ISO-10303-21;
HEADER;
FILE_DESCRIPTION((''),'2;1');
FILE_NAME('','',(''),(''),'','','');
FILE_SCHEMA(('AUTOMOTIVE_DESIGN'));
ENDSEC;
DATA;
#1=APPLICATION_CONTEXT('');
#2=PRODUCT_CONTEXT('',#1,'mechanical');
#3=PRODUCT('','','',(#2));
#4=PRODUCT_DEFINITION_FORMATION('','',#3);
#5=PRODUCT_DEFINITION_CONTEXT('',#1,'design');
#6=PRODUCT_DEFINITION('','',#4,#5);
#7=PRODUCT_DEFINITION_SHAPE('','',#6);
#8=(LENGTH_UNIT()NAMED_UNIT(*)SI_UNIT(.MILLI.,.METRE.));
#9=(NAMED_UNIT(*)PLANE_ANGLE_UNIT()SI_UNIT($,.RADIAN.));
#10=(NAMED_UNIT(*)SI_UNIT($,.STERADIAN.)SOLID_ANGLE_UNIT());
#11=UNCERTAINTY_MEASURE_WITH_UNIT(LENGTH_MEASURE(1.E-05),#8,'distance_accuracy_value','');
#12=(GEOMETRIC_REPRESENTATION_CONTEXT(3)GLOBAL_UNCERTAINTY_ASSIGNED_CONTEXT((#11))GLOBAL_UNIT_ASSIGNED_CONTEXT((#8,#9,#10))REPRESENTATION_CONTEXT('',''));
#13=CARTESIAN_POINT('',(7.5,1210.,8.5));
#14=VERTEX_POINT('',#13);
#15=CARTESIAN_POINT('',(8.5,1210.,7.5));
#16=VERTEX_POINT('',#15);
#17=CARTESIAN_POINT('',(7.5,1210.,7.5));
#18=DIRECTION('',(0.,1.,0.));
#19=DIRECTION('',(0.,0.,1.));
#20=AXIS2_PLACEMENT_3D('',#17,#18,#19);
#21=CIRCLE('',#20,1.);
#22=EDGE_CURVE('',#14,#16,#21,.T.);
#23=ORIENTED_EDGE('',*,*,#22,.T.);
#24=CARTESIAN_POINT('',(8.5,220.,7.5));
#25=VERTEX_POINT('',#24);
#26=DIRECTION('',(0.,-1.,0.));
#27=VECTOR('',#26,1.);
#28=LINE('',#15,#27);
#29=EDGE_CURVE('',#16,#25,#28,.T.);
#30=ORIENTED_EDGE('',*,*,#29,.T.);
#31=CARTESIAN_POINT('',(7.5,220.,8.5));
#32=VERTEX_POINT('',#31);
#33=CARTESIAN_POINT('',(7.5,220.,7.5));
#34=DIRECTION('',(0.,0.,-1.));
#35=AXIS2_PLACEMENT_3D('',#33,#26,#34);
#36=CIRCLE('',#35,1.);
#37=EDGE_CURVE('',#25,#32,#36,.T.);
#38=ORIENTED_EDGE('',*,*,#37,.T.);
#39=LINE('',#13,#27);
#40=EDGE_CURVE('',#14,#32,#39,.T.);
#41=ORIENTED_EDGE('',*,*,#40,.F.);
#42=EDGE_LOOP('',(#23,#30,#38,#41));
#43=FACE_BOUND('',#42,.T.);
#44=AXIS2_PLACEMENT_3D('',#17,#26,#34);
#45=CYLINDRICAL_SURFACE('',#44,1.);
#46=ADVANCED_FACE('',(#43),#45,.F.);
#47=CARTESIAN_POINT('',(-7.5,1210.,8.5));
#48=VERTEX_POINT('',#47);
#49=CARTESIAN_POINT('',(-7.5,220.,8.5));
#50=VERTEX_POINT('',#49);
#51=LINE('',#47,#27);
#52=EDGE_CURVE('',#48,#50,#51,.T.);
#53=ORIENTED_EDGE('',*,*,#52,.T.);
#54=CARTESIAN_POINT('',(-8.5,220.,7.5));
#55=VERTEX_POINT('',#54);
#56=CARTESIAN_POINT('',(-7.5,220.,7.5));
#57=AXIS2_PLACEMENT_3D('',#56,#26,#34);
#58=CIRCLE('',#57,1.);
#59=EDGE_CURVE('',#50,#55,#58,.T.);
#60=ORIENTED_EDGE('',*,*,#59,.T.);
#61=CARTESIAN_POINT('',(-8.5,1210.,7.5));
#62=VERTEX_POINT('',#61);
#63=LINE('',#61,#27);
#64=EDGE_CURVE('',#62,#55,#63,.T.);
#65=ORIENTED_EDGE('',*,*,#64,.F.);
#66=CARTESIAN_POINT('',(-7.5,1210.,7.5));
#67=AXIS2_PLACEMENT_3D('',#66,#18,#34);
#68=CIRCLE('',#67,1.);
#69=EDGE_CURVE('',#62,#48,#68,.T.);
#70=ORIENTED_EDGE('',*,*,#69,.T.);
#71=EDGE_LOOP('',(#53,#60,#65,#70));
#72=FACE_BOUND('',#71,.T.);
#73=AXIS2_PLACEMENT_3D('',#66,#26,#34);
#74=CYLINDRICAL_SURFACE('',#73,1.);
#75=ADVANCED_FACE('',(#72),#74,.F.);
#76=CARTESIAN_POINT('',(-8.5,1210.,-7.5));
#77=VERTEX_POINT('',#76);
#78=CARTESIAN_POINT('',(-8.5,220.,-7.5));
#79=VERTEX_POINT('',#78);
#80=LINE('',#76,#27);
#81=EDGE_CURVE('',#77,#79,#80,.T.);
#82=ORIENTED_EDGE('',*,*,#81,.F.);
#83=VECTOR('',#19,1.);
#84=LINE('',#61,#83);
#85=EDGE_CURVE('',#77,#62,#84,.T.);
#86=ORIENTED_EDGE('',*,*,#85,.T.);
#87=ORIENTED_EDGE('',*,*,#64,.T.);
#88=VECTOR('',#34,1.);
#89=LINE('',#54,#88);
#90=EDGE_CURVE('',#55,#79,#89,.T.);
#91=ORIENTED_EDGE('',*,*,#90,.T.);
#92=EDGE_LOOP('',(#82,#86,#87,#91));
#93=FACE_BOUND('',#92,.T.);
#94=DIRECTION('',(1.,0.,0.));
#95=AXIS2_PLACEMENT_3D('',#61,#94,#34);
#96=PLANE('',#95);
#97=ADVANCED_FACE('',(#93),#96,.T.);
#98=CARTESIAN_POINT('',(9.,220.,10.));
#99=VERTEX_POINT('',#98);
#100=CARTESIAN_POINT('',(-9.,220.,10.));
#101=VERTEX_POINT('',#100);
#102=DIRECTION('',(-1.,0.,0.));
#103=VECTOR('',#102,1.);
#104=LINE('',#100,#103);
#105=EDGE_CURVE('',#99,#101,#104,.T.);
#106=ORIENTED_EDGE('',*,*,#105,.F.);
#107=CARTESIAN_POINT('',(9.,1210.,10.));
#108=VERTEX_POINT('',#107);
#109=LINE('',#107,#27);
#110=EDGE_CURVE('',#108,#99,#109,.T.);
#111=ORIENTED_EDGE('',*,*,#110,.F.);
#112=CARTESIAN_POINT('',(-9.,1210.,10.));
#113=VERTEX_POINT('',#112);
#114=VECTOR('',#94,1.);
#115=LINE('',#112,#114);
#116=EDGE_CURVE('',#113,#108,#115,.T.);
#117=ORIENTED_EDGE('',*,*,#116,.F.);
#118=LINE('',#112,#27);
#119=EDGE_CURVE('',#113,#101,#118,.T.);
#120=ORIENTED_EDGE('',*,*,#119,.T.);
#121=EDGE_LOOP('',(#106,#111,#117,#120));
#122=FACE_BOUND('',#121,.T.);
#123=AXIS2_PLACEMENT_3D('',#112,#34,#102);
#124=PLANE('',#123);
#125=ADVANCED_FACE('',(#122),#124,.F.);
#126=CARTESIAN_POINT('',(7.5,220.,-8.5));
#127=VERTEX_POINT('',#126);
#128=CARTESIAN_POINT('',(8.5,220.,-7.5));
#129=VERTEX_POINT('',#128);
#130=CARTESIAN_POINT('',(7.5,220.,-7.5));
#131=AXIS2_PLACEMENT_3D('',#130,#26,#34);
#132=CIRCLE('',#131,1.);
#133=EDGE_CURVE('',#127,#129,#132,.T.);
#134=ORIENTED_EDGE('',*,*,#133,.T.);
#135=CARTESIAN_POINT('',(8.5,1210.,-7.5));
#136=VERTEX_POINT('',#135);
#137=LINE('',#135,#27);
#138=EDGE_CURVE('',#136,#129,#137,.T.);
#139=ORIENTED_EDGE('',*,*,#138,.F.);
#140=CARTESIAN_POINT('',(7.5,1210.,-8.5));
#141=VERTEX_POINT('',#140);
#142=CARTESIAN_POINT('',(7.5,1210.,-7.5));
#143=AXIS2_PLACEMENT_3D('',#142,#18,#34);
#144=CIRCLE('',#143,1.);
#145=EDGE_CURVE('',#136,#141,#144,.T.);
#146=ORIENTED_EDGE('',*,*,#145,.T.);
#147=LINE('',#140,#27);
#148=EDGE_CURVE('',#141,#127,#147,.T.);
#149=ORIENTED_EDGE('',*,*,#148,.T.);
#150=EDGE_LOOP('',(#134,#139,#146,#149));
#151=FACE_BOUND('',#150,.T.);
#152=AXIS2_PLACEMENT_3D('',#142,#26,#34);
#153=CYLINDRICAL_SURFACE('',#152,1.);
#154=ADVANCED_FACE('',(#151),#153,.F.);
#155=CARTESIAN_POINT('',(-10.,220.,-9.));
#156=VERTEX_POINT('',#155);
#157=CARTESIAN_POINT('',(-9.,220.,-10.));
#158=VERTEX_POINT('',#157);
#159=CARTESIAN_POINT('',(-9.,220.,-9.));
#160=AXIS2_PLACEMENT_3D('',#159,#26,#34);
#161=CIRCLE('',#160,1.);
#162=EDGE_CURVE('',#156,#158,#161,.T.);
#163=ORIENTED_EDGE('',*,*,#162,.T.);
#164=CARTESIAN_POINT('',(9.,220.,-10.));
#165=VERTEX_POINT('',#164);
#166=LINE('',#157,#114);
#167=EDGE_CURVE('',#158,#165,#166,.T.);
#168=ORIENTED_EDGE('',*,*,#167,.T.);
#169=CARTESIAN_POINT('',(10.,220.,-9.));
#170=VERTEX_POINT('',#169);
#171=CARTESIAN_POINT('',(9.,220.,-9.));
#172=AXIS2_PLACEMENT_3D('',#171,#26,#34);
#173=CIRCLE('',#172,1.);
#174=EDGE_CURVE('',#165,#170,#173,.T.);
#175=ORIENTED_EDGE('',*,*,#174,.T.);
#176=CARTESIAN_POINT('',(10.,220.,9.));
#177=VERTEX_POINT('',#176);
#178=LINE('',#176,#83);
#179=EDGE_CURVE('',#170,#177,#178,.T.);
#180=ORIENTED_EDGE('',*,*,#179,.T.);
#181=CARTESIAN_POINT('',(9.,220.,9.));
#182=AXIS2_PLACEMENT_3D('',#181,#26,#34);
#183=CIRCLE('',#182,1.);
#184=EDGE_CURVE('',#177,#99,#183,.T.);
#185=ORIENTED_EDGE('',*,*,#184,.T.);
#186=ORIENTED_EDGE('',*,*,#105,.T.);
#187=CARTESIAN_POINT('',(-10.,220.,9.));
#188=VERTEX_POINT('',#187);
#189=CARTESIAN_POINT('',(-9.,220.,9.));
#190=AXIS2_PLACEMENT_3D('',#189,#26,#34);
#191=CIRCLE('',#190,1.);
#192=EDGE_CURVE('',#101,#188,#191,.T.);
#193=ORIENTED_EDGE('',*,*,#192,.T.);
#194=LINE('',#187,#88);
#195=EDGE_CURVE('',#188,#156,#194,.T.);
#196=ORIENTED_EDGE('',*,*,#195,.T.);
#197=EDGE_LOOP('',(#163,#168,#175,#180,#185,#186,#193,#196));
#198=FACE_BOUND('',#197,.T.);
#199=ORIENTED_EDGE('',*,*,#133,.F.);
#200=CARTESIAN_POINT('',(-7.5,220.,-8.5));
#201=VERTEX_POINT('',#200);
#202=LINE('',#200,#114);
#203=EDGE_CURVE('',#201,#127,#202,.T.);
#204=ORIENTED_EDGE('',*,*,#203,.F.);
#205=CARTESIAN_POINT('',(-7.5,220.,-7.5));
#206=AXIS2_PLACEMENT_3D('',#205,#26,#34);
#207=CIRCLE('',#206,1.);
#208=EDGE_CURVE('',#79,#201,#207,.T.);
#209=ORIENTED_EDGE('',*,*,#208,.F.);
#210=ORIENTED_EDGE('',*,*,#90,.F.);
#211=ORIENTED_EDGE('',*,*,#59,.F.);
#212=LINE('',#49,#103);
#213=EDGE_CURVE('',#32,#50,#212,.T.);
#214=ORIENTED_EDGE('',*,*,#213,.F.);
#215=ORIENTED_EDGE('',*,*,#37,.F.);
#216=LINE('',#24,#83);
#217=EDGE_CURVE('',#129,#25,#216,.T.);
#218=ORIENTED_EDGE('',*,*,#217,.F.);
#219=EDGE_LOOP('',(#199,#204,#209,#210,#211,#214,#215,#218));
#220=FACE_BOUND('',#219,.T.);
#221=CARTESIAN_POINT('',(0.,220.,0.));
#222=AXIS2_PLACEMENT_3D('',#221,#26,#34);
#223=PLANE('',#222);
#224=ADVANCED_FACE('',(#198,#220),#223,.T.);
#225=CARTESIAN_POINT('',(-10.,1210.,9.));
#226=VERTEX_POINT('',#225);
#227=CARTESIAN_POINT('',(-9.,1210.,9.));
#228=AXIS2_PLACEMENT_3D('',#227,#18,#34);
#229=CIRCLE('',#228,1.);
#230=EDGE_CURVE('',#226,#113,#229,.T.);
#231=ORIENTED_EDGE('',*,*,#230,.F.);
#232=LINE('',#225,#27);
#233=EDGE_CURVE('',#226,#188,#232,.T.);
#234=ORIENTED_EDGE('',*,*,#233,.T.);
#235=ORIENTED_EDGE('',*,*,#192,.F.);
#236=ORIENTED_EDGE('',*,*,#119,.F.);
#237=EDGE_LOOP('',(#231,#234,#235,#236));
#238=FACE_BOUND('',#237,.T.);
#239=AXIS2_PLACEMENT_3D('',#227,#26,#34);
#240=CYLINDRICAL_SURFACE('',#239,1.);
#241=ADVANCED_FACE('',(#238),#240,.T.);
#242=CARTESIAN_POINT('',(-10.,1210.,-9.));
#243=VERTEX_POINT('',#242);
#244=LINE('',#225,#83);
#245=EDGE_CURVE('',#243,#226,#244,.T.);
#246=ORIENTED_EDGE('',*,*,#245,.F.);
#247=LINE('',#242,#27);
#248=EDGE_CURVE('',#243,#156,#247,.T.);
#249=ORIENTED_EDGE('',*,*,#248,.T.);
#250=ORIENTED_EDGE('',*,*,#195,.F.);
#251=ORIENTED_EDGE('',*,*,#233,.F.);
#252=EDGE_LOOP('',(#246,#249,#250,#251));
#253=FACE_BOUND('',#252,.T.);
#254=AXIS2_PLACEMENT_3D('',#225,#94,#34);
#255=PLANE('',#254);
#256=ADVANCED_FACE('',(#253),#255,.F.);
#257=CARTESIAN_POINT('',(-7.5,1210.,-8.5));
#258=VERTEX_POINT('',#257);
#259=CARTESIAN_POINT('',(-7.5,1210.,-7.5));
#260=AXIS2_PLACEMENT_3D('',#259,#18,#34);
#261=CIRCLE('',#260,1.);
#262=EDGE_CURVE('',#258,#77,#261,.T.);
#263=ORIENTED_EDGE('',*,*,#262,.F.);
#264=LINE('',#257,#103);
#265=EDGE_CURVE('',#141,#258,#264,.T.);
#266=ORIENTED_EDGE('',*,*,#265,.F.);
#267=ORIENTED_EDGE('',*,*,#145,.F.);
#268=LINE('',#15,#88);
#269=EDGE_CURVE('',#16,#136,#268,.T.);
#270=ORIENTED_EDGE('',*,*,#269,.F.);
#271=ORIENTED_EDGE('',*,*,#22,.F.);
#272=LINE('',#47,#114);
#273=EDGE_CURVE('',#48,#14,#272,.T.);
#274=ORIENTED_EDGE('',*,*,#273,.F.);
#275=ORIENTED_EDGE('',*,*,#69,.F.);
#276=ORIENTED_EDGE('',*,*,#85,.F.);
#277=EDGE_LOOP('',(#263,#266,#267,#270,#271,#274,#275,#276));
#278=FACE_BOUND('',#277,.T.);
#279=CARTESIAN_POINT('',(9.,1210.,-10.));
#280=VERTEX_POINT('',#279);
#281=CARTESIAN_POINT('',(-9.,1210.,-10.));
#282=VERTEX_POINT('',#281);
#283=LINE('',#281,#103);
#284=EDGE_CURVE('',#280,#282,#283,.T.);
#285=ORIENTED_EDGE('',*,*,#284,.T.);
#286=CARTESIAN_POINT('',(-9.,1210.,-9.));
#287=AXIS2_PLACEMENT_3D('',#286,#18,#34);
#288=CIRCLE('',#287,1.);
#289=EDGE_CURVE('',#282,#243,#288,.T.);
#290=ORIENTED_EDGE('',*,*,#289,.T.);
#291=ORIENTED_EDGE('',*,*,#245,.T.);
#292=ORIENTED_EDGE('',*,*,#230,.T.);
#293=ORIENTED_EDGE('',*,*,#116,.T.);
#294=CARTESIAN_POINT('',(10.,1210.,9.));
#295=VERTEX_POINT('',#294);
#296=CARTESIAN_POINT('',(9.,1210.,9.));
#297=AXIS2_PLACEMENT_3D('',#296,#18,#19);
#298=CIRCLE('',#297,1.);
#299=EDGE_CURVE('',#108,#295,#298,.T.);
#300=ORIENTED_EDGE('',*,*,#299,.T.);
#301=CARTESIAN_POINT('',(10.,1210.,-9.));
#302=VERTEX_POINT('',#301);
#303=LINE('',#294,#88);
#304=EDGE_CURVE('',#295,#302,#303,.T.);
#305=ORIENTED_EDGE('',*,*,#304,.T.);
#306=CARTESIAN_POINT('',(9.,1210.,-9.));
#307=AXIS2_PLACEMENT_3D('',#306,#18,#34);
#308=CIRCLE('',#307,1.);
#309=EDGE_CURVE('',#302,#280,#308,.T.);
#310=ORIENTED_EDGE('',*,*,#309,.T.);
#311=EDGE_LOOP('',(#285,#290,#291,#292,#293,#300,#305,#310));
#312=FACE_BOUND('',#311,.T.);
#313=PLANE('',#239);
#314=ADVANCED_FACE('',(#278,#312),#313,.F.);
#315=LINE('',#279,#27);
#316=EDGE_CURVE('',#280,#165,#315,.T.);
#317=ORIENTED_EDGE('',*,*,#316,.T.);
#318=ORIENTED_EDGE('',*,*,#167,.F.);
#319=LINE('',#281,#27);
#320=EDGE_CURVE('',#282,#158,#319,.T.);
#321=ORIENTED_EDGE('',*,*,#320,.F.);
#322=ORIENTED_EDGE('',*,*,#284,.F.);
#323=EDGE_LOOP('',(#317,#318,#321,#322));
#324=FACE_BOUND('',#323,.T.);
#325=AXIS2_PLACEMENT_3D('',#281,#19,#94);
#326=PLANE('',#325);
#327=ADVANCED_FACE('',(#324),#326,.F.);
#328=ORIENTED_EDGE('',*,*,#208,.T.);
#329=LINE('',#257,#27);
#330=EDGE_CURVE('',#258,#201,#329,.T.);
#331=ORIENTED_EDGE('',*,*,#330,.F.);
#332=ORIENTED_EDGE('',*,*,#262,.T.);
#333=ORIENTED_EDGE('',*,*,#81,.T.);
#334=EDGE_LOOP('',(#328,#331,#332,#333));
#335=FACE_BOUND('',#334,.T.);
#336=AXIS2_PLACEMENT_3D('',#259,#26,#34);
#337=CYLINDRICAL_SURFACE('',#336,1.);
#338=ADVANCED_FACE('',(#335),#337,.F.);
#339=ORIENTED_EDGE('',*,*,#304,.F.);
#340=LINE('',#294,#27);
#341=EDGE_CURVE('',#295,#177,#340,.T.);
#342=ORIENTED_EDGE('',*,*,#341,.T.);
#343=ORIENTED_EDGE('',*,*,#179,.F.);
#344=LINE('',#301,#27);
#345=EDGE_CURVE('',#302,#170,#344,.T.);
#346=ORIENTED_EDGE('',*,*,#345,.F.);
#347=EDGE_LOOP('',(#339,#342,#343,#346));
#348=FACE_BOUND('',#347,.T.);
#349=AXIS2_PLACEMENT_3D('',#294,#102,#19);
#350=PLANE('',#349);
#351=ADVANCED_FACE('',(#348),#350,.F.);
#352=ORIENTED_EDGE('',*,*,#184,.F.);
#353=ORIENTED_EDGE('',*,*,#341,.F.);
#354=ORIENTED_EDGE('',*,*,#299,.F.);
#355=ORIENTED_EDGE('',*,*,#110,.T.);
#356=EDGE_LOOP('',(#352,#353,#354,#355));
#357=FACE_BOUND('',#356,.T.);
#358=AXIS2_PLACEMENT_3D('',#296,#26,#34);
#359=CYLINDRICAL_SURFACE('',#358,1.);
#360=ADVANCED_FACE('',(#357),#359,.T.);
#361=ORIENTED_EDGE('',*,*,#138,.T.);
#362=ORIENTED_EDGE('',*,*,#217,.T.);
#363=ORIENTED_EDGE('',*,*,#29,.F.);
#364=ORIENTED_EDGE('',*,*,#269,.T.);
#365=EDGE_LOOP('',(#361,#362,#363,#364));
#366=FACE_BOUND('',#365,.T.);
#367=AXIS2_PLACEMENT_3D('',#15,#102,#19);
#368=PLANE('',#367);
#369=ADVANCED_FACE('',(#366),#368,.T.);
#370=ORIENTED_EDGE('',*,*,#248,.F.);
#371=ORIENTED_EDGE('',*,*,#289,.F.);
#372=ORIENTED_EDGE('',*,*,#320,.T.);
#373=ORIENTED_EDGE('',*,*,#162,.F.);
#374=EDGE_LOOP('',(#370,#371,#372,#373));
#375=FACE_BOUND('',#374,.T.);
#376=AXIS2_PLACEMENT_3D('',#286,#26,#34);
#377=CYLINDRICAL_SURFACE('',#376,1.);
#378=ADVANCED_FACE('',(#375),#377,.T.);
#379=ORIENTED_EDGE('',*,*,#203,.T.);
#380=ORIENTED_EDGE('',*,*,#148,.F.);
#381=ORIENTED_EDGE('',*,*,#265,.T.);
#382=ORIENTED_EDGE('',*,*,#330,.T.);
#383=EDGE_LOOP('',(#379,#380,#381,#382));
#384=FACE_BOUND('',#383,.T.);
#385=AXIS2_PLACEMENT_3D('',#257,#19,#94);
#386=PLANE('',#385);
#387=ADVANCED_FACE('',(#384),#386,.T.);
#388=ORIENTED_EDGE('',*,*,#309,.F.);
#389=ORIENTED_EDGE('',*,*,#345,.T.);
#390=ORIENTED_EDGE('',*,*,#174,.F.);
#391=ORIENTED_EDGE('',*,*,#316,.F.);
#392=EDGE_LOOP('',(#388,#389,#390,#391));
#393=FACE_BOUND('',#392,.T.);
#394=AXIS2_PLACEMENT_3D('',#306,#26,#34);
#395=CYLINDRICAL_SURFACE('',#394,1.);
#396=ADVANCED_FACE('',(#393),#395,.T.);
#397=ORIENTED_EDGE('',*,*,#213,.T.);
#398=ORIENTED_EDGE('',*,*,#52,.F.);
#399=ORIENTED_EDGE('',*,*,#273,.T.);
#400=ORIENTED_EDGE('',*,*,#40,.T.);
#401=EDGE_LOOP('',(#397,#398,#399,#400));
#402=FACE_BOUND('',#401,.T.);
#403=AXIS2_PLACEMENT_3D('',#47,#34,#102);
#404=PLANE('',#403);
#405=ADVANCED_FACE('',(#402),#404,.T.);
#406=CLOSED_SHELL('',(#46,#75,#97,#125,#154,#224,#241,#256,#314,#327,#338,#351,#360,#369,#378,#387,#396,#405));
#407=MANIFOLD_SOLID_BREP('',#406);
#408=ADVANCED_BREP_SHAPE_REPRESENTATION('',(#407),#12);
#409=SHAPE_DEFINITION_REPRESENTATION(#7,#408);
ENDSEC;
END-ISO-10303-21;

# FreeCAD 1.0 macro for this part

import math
import FreeCAD as App
import Part
import Sketcher
from FreeCAD import Vector

doc = App.newDocument("Part")
params = doc.addObject("Spreadsheet::Sheet", "Params")
for row, (alias, value) in enumerate([
    ("sketch1_radius", "1 mm"),
    ("sketch1_width", "18 mm"),
    ("sketch1_width2", "15 mm"),
    ("pad1_length", "1210 mm"),
    ("pocket1_length", "220 mm"),
], start=1):
    params.set(f"A{row}", alias)
    params.set(f"B{row}", "=" + value)
    params.setAlias(f"B{row}", alias)

body = doc.addObject("PartDesign::Body", "Body")

# Sketch on XZ plane
sketch1 = body.newObject("Sketcher::SketchObject", "Sketch")
sketch1.AttachmentSupport = (doc.getObject("XZ_Plane"), [""])
sketch1.MapMode = "FlatFace"
sketch1.addGeometry([
    Part.LineSegment(Vector(-9, 10, 0), Vector(9, 10, 0)),  # 0
    Part.ArcOfCircle(Part.Circle(Vector(9, 9, 0), Vector(0, 0, 1), 1), math.radians(0), math.radians(90)),  # 1
    Part.LineSegment(Vector(10, 9, 0), Vector(10, -9, 0)),  # 2
    Part.ArcOfCircle(Part.Circle(Vector(9, -9, 0), Vector(0, 0, 1), 1), math.radians(-90), math.radians(0)),  # 3
    Part.LineSegment(Vector(9, -10, 0), Vector(-9, -10, 0)),  # 4
    Part.ArcOfCircle(Part.Circle(Vector(-9, -9, 0), Vector(0, 0, 1), 1), math.radians(-180), math.radians(-90)),  # 5
    Part.LineSegment(Vector(-10, -9, 0), Vector(-10, 9, 0)),  # 6
    Part.ArcOfCircle(Part.Circle(Vector(-9, 9, 0), Vector(0, 0, 1), 1), math.radians(90), math.radians(180)),  # 7
    Part.LineSegment(Vector(7.5, 8.5, 0), Vector(-7.5, 8.5, 0)),  # 8
    Part.ArcOfCircle(Part.Circle(Vector(-7.5, 7.5, 0), Vector(0, 0, 1), 1), math.radians(90), math.radians(180)),  # 9
    Part.LineSegment(Vector(-8.5, 7.5, 0), Vector(-8.5, -7.5, 0)),  # 10
    Part.ArcOfCircle(Part.Circle(Vector(-7.5, -7.5, 0), Vector(0, 0, 1), 1), math.radians(-180), math.radians(-90)),  # 11
    Part.LineSegment(Vector(-7.5, -8.5, 0), Vector(7.5, -8.5, 0)),  # 12
    Part.ArcOfCircle(Part.Circle(Vector(7.5, -7.5, 0), Vector(0, 0, 1), 1), math.radians(-90), math.radians(0)),  # 13
    Part.LineSegment(Vector(8.5, -7.5, 0), Vector(8.5, 7.5, 0)),  # 14
    Part.ArcOfCircle(Part.Circle(Vector(7.5, 7.5, 0), Vector(0, 0, 1), 1), math.radians(0), math.radians(90)),  # 15
], False)
sketch1.addConstraint([
    Sketcher.Constraint("Tangent", 0, 2, 1, 2),
    Sketcher.Constraint("Tangent", 1, 1, 2, 1),
    Sketcher.Constraint("Tangent", 2, 2, 3, 2),
    Sketcher.Constraint("Tangent", 3, 1, 4, 1),
    Sketcher.Constraint("Tangent", 4, 2, 5, 2),
    Sketcher.Constraint("Tangent", 5, 1, 6, 1),
    Sketcher.Constraint("Tangent", 6, 2, 7, 2),
    Sketcher.Constraint("Tangent", 7, 1, 0, 1),
    Sketcher.Constraint("Tangent", 8, 2, 9, 1),
    Sketcher.Constraint("Tangent", 9, 2, 10, 1),
    Sketcher.Constraint("Tangent", 10, 2, 11, 1),
    Sketcher.Constraint("Tangent", 11, 2, 12, 1),
    Sketcher.Constraint("Tangent", 12, 2, 13, 1),
    Sketcher.Constraint("Tangent", 13, 2, 14, 1),
    Sketcher.Constraint("Tangent", 14, 2, 15, 1),
    Sketcher.Constraint("Tangent", 15, 2, 8, 1),
    Sketcher.Constraint("Horizontal", 0),
    Sketcher.Constraint("Vertical", 2),
    Sketcher.Constraint("Horizontal", 4),
    Sketcher.Constraint("Vertical", 6),
    Sketcher.Constraint("Horizontal", 8),
    Sketcher.Constraint("Vertical", 10),
    Sketcher.Constraint("Horizontal", 12),
    Sketcher.Constraint("Vertical", 14),
    Sketcher.Constraint("Equal", 1, 3),
    Sketcher.Constraint("Equal", 3, 5),
    Sketcher.Constraint("Equal", 5, 7),
    Sketcher.Constraint("Equal", 7, 9),
    Sketcher.Constraint("Equal", 9, 11),
    Sketcher.Constraint("Equal", 11, 13),
    Sketcher.Constraint("Equal", 13, 15),
    Sketcher.Constraint("Symmetric", 1, 3, 5, 3, -1, 1),
    Sketcher.Constraint("Symmetric", 9, 3, 13, 3, -1, 1),
    Sketcher.Constraint("Equal", 4, 2),
    Sketcher.Constraint("Equal", 12, 10),
    Sketcher.Constraint("Radius", 1, 1.0),
    Sketcher.Constraint("DistanceX", 0, 1, 0, 2, 18.0),
    Sketcher.Constraint("DistanceX", 8, 2, 8, 1, 15.0),
])
sketch1.setExpression("Constraints[35]", "Params.sketch1_radius")
sketch1.setExpression("Constraints[36]", "Params.sketch1_width")
sketch1.setExpression("Constraints[37]", "Params.sketch1_width2")
pad1 = body.newObject("PartDesign::Pad", "Pad")
pad1.Profile = sketch1
pad1.setExpression("Length", "Params.pad1_length")
pad1.Reversed = True

# Sketch on XZ plane
sketch2 = body.newObject("Sketcher::SketchObject", "Sketch001")
sketch2.AttachmentSupport = (doc.getObject("XZ_Plane"), [""])
sketch2.MapMode = "FlatFace"
sketch2.addGeometry([
    Part.LineSegment(Vector(-47, 52, 0), Vector(-47, -86, 0)),
    Part.LineSegment(Vector(-47, -86, 0), Vector(55, -86, 0)),
    Part.LineSegment(Vector(55, -86, 0), Vector(55, 52, 0)),
    Part.LineSegment(Vector(55, 52, 0), Vector(-47, 52, 0)),
], False)
sketch2.addConstraint([
    Sketcher.Constraint("Coincident", 0, 2, 1, 1),
    Sketcher.Constraint("Coincident", 1, 2, 2, 1),
    Sketcher.Constraint("Coincident", 2, 2, 3, 1),
    Sketcher.Constraint("Coincident", 3, 2, 0, 1),
    Sketcher.Constraint("Vertical", 0),
    Sketcher.Constraint("Horizontal", 1),
    Sketcher.Constraint("Vertical", 2),
    Sketcher.Constraint("Horizontal", 3),
    Sketcher.Constraint("DistanceX", 1, 1, 1, 2, 101.89506),
    Sketcher.Constraint("DistanceY", 0, 2, 0, 1, 138.127514),
    Sketcher.Constraint("DistanceX", 0, 2, -1, 1, 46.63173),
    Sketcher.Constraint("DistanceY", -1, 1, 2, 2, 52.441912),
])
pocket1 = body.newObject("PartDesign::Pocket", "Pocket")
pocket1.Profile = sketch2
pocket1.setExpression("Length", "Params.pocket1_length")

doc.recompute()
